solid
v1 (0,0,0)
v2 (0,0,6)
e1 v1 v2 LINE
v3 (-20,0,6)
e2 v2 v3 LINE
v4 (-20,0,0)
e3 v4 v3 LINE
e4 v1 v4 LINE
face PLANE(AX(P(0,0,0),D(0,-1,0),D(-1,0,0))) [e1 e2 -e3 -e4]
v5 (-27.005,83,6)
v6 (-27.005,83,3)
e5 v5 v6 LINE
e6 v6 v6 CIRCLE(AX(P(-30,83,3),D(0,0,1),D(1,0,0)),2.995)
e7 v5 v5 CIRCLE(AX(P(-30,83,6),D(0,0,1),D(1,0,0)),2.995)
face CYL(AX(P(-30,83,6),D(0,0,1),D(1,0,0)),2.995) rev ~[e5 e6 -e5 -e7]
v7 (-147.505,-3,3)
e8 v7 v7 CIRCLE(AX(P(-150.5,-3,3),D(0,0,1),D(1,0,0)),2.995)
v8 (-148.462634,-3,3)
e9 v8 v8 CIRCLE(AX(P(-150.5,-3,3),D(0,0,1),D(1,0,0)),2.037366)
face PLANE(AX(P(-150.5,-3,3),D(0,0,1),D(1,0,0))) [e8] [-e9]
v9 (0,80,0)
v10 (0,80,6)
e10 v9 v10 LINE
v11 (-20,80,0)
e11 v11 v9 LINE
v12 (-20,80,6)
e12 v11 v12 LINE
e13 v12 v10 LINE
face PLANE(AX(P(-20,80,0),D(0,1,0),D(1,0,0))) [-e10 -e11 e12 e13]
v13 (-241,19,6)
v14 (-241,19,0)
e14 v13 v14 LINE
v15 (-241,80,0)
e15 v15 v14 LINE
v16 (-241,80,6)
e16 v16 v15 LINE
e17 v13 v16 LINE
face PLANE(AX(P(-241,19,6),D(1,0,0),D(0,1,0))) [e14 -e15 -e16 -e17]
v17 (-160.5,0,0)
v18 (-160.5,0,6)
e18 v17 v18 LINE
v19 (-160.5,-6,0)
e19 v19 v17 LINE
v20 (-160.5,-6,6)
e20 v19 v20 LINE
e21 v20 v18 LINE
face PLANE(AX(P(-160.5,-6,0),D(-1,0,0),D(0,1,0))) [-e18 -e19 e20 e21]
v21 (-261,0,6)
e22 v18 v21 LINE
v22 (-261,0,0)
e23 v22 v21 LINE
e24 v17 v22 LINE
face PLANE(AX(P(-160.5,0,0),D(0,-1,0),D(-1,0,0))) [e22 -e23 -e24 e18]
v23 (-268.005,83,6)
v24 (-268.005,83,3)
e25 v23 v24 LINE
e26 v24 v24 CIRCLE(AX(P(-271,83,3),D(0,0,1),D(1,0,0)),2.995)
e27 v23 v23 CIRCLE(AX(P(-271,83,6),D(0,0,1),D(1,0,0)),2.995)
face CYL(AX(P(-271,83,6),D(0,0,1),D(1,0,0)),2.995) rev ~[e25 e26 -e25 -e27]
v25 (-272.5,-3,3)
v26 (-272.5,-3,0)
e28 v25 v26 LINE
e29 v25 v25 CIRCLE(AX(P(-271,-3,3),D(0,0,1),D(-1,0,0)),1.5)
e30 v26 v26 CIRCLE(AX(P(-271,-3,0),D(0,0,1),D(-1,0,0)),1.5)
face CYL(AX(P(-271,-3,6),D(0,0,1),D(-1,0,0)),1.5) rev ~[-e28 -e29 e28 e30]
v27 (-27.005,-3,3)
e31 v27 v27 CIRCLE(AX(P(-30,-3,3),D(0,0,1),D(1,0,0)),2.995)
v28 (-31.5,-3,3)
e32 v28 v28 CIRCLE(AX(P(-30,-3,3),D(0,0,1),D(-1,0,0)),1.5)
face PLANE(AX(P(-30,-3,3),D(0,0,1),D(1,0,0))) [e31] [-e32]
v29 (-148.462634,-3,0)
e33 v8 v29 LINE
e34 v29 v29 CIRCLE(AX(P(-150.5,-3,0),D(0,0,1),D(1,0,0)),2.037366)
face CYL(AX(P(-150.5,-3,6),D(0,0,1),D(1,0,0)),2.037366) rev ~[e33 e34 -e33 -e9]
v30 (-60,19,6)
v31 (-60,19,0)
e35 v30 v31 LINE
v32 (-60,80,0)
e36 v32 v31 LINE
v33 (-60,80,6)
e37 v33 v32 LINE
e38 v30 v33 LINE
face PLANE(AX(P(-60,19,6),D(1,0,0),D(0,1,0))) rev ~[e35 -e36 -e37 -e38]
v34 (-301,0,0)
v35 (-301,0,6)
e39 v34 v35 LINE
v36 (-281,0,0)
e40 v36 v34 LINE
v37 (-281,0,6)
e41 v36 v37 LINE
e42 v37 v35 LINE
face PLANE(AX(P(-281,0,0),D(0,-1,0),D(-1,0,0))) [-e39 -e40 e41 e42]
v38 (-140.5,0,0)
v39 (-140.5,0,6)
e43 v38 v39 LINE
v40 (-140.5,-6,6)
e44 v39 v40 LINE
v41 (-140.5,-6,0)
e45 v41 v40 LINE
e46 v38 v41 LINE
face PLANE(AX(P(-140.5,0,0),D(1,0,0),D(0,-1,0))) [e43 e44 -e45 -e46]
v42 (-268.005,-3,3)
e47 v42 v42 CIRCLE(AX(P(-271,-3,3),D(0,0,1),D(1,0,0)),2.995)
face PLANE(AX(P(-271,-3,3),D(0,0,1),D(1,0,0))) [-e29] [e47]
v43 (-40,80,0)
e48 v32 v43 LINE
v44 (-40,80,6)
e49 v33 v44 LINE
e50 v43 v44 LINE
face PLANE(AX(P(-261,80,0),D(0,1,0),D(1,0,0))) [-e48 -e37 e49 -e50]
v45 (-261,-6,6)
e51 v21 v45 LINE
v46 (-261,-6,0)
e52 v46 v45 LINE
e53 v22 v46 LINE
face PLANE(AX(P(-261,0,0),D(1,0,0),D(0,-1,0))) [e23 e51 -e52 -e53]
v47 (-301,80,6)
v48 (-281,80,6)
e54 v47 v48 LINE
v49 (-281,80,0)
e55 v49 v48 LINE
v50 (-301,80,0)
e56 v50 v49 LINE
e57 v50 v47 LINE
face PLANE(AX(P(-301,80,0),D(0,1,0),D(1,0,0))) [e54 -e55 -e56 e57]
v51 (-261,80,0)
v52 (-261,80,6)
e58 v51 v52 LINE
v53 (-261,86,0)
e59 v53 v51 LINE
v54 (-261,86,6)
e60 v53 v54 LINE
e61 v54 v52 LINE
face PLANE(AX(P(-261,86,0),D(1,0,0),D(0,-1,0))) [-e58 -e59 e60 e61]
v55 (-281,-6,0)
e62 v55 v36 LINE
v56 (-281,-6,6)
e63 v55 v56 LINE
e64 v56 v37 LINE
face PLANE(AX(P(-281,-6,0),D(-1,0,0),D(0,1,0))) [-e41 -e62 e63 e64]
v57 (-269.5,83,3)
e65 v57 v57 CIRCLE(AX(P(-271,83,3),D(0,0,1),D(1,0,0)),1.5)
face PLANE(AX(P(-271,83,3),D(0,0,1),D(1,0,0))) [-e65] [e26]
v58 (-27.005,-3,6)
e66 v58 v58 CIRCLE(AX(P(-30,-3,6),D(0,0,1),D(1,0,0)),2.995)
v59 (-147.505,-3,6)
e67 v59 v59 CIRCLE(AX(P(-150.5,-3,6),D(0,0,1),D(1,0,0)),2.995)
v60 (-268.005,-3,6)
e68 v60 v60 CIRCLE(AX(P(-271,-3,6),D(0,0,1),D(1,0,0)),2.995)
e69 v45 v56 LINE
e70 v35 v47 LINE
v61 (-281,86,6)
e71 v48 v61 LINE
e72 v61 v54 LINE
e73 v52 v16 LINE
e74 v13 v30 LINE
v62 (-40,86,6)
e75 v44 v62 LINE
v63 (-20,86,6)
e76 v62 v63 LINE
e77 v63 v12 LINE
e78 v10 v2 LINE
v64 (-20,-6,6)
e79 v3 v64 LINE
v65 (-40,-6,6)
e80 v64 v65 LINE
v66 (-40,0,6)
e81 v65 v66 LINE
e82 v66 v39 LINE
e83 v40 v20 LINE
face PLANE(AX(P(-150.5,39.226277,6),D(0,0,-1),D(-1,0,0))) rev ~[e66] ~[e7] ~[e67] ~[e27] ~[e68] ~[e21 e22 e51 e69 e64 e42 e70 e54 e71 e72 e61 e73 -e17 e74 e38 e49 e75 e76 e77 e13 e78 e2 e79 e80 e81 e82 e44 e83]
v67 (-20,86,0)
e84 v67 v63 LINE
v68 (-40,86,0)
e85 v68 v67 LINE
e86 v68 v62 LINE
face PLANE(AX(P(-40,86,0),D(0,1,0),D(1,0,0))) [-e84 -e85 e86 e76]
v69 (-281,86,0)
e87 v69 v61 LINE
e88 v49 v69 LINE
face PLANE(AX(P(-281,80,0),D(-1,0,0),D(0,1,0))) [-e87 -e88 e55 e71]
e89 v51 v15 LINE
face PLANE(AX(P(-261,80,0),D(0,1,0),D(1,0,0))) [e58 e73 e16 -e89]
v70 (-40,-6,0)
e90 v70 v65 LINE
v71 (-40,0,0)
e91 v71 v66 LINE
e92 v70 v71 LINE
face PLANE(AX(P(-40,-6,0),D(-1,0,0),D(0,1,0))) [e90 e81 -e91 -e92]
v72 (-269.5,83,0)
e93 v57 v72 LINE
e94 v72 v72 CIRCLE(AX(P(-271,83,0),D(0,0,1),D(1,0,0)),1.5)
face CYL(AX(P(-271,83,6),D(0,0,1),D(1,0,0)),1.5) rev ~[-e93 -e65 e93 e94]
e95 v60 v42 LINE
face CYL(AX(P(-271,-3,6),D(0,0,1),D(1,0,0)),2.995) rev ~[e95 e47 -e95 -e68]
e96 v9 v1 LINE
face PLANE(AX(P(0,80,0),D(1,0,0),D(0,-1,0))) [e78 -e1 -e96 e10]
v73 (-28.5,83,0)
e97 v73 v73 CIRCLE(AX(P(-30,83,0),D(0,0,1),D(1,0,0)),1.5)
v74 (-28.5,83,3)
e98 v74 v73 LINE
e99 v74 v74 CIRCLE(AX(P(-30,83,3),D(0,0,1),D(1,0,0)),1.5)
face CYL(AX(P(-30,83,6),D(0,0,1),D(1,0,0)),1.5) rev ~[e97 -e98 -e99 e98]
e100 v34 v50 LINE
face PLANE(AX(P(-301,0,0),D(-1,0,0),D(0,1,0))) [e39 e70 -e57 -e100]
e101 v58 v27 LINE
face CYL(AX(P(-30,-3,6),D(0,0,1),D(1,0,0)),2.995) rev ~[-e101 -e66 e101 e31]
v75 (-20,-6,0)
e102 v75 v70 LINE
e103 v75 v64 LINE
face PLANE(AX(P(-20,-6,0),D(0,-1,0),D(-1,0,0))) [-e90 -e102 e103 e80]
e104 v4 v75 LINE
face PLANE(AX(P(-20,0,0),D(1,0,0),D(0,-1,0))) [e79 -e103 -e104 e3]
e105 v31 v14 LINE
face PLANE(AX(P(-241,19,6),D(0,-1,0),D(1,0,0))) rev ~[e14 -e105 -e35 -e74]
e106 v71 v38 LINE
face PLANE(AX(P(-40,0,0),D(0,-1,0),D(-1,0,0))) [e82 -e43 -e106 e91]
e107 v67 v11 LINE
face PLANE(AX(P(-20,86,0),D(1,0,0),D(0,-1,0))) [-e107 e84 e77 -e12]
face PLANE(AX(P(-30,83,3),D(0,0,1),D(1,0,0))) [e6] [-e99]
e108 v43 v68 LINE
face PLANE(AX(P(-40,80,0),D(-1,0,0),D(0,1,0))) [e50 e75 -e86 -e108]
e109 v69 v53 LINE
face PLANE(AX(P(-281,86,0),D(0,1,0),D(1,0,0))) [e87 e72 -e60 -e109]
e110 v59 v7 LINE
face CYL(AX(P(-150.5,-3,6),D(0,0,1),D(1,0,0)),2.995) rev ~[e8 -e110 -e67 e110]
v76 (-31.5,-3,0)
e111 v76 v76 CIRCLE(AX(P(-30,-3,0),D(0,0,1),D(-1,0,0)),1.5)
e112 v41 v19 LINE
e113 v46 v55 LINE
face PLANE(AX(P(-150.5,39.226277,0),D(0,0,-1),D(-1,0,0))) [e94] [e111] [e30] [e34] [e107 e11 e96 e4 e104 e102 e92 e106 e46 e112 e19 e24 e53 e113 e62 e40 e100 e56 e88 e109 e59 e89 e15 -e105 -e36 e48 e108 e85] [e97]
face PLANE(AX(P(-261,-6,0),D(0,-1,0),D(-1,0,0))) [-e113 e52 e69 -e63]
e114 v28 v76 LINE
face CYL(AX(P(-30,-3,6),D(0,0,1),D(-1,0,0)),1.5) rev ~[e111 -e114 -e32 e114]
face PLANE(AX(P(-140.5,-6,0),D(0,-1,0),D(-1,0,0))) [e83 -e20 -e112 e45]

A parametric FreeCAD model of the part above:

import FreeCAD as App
import Part
import Sketcher
from FreeCAD import Vector
Q = App.Units.Quantity

doc = App.newDocument("Part")
params = doc.addObject("Spreadsheet::Sheet", "Params")
for row, (alias, value) in enumerate([
    ("sketch1_width", "20 mm"),
    ("sketch1_width2", "221 mm"),
    ("sketch1_height", "80 mm"),
    ("sketch1_height2", "6 mm"),
    ("pad1_length", "6 mm"),
    ("sketch2_width", "181 mm"),
    ("sketch2_height", "61 mm"),
    ("sketch3_diameter", "3 mm"),
    ("sketch4_diameter", "5.99 mm"),
    ("pocket3_length", "3 mm"),
], start=1):
    params.set(f"A{row}", alias)
    params.set(f"B{row}", "=" + value)
    params.setAlias(f"B{row}", alias)

body = doc.addObject("PartDesign::Body", "Body")

# Sketch on XY plane
sketch1 = body.newObject("Sketcher::SketchObject", "Sketch")
sketch1.AttachmentSupport = (doc.getObject("XY_Plane"), [""])
sketch1.MapMode = "FlatFace"
sketch1.addGeometry([
    Part.LineSegment(Vector(-281, 80, 0), Vector(-301, 80, 0)),  # 0
    Part.LineSegment(Vector(-301, 80, 0), Vector(-301, 0, 0)),  # 1
    Part.LineSegment(Vector(-301, 0, 0), Vector(-281, 0, 0)),  # 2
    Part.LineSegment(Vector(-281, 0, 0), Vector(-281, -6, 0)),  # 3
    Part.LineSegment(Vector(-281, -6, 0), Vector(-261, -6, 0)),  # 4
    Part.LineSegment(Vector(-261, -6, 0), Vector(-261, 0, 0)),  # 5
    Part.LineSegment(Vector(-261, 0, 0), Vector(-160, 0, 0)),  # 6
    Part.LineSegment(Vector(-160, 0, 0), Vector(-160, -6, 0)),  # 7
    Part.LineSegment(Vector(-160, -6, 0), Vector(-140, -6, 0)),  # 8
    Part.LineSegment(Vector(-140, -6, 0), Vector(-140, 0, 0)),  # 9
    Part.LineSegment(Vector(-140, 0, 0), Vector(-40, 0, 0)),  # 10
    Part.LineSegment(Vector(-40, 0, 0), Vector(-40, -6, 0)),  # 11
    Part.LineSegment(Vector(-40, -6, 0), Vector(-20, -6, 0)),  # 12
    Part.LineSegment(Vector(-20, -6, 0), Vector(-20, 0, 0)),  # 13
    Part.LineSegment(Vector(-20, 0, 0), Vector(0, 0, 0)),  # 14
    Part.LineSegment(Vector(0, 0, 0), Vector(0, 80, 0)),  # 15
    Part.LineSegment(Vector(0, 80, 0), Vector(-20, 80, 0)),  # 16
    Part.LineSegment(Vector(-20, 80, 0), Vector(-20, 86, 0)),  # 17
    Part.LineSegment(Vector(-20, 86, 0), Vector(-40, 86, 0)),  # 18
    Part.LineSegment(Vector(-40, 86, 0), Vector(-40, 80, 0)),  # 19
    Part.LineSegment(Vector(-40, 80, 0), Vector(-261, 80, 0)),  # 20
    Part.LineSegment(Vector(-261, 80, 0), Vector(-261, 86, 0)),  # 21
    Part.LineSegment(Vector(-261, 86, 0), Vector(-281, 86, 0)),  # 22
    Part.LineSegment(Vector(-281, 86, 0), Vector(-281, 80, 0)),  # 23
], False)
sketch1.addConstraint([
    Sketcher.Constraint("Coincident", 0, 2, 1, 1),
    Sketcher.Constraint("Coincident", 1, 2, 2, 1),
    Sketcher.Constraint("Coincident", 2, 2, 3, 1),
    Sketcher.Constraint("Coincident", 3, 2, 4, 1),
    Sketcher.Constraint("Coincident", 4, 2, 5, 1),
    Sketcher.Constraint("Coincident", 5, 2, 6, 1),
    Sketcher.Constraint("Coincident", 6, 2, 7, 1),
    Sketcher.Constraint("Coincident", 7, 2, 8, 1),
    Sketcher.Constraint("Coincident", 8, 2, 9, 1),
    Sketcher.Constraint("Coincident", 9, 2, 10, 1),
    Sketcher.Constraint("Coincident", 10, 2, 11, 1),
    Sketcher.Constraint("Coincident", 11, 2, 12, 1),
    Sketcher.Constraint("Coincident", 12, 2, 13, 1),
    Sketcher.Constraint("Coincident", 13, 2, 14, 1),
    Sketcher.Constraint("Coincident", 14, 2, 15, 1),
    Sketcher.Constraint("Coincident", 15, 2, 16, 1),
    Sketcher.Constraint("Coincident", 16, 2, 17, 1),
    Sketcher.Constraint("Coincident", 17, 2, 18, 1),
    Sketcher.Constraint("Coincident", 18, 2, 19, 1),
    Sketcher.Constraint("Coincident", 19, 2, 20, 1),
    Sketcher.Constraint("Coincident", 20, 2, 21, 1),
    Sketcher.Constraint("Coincident", 21, 2, 22, 1),
    Sketcher.Constraint("Coincident", 22, 2, 23, 1),
    Sketcher.Constraint("Coincident", 23, 2, 0, 1),
    Sketcher.Constraint("Horizontal", 0),
    Sketcher.Constraint("Vertical", 1),
    Sketcher.Constraint("Horizontal", 2),
    Sketcher.Constraint("Vertical", 3),
    Sketcher.Constraint("Horizontal", 4),
    Sketcher.Constraint("Vertical", 5),
    Sketcher.Constraint("Horizontal", 6),
    Sketcher.Constraint("Vertical", 7),
    Sketcher.Constraint("Horizontal", 8),
    Sketcher.Constraint("Vertical", 9),
    Sketcher.Constraint("Horizontal", 10),
    Sketcher.Constraint("Vertical", 11),
    Sketcher.Constraint("Horizontal", 12),
    Sketcher.Constraint("Vertical", 13),
    Sketcher.Constraint("Horizontal", 14),
    Sketcher.Constraint("Vertical", 15),
    Sketcher.Constraint("Horizontal", 16),
    Sketcher.Constraint("Vertical", 17),
    Sketcher.Constraint("Horizontal", 18),
    Sketcher.Constraint("Vertical", 19),
    Sketcher.Constraint("Horizontal", 20),
    Sketcher.Constraint("Vertical", 21),
    Sketcher.Constraint("Horizontal", 22),
    Sketcher.Constraint("Vertical", 23),
    Sketcher.Constraint("Coincident", 14, 2, -1, 1),
    Sketcher.Constraint("PointOnObject", 1, 2, -1),
    Sketcher.Constraint("PointOnObject", 5, 2, -1),
    Sketcher.Constraint("PointOnObject", 9, 2, -1),
    Sketcher.Constraint("Horizontal", 4, 2, 7, 2),
    Sketcher.Constraint("Horizontal", 8, 2, 11, 2),
    Sketcher.Constraint("Horizontal", 0, 2, 15, 2),
    Sketcher.Constraint("Horizontal", 16, 2, 19, 2),
    Sketcher.Constraint("Horizontal", 18, 2, 21, 2),
    Sketcher.Constraint("Vertical", 13, 2, 16, 2),
    Sketcher.Constraint("Vertical", 11, 2, 18, 2),
    Sketcher.Constraint("Vertical", 5, 2, 20, 2),
    Sketcher.Constraint("Vertical", 3, 2, 22, 2),
    Sketcher.Constraint("Equal", 2, 4),
    Sketcher.Constraint("Equal", 4, 8),
    Sketcher.Constraint("Equal", 6, 10),
    Sketcher.Constraint("Equal", 8, 12),
    Sketcher.Constraint("Equal", 12, 14),
    Sketcher.Constraint("Equal", 13, 17),
    Sketcher.Constraint("DistanceX", 0, 2, 0, 1, Q("20 mm")),
    Sketcher.Constraint("DistanceX", 20, 2, 20, 1, Q("221 mm")),
    Sketcher.Constraint("DistanceY", 1, 2, 1, 1, Q("80 mm")),
    Sketcher.Constraint("DistanceY", 3, 2, 3, 1, Q("6 mm")),
])
sketch1.setExpression("Constraints[67]", "Params.sketch1_width")
sketch1.setExpression("Constraints[68]", "Params.sketch1_width2")
sketch1.setExpression("Constraints[69]", "Params.sketch1_height")
sketch1.setExpression("Constraints[70]", "Params.sketch1_height2")
pad1 = body.newObject("PartDesign::Pad", "Pad")
pad1.Profile = sketch1
pad1.setExpression("Length", "Params.pad1_length")

# Sketch on XY plane
sketch2 = body.newObject("Sketcher::SketchObject", "Sketch001")
sketch2.AttachmentSupport = (doc.getObject("XY_Plane"), [""])
sketch2.MapMode = "FlatFace"
sketch2.AttachmentOffset = App.Placement(Vector(0, 0, 6), App.Rotation())
sketch2.addGeometry([
    Part.LineSegment(Vector(-241, 80, 0), Vector(-241, 19, 0)),
    Part.LineSegment(Vector(-241, 19, 0), Vector(-60, 19, 0)),
    Part.LineSegment(Vector(-60, 19, 0), Vector(-60, 80, 0)),
    Part.LineSegment(Vector(-60, 80, 0), Vector(-241, 80, 0)),
], False)
sketch2.addConstraint([
    Sketcher.Constraint("Coincident", 0, 2, 1, 1),
    Sketcher.Constraint("Coincident", 1, 2, 2, 1),
    Sketcher.Constraint("Coincident", 2, 2, 3, 1),
    Sketcher.Constraint("Coincident", 3, 2, 0, 1),
    Sketcher.Constraint("Vertical", 0),
    Sketcher.Constraint("Horizontal", 1),
    Sketcher.Constraint("Vertical", 2),
    Sketcher.Constraint("Horizontal", 3),
    Sketcher.Constraint("DistanceX", 1, 1, 1, 2, Q("181 mm")),
    Sketcher.Constraint("DistanceY", 0, 2, 0, 1, Q("61 mm")),
    Sketcher.Constraint("DistanceX", 0, 2, -1, 1, Q("241 mm")),
    Sketcher.Constraint("DistanceY", -1, 1, 0, 2, Q("19 mm")),
])
sketch2.setExpression("Constraints[8]", "Params.sketch2_width")
sketch2.setExpression("Constraints[9]", "Params.sketch2_height")
pocket1 = body.newObject("PartDesign::Pocket", "Pocket")
pocket1.Profile = sketch2
pocket1.Type = "ThroughAll"

# Sketch on XY plane
sketch3 = body.newObject("Sketcher::SketchObject", "Sketch002")
sketch3.AttachmentSupport = (doc.getObject("XY_Plane"), [""])
sketch3.MapMode = "FlatFace"
sketch3.AttachmentOffset = App.Placement(Vector(0, 0, 6), App.Rotation())
sketch3.addGeometry([
    Part.Circle(Vector(-271, 83, 0), Vector(0, 0, 1), 1.5),  # 0
    Part.Circle(Vector(-30, 83, 0), Vector(0, 0, 1), 1.5),  # 1
    Part.Circle(Vector(-30, -3, 0), Vector(0, 0, 1), 1.5),  # 2
    Part.Circle(Vector(-271, -3, 0), Vector(0, 0, 1), 1.5),  # 3
    Part.Circle(Vector(-150.5, -3, 0), Vector(0, 0, 1), 2),  # 4
], False)
sketch3.addConstraint([
    Sketcher.Constraint("Equal", 0, 1),
    Sketcher.Constraint("Equal", 1, 2),
    Sketcher.Constraint("Equal", 2, 3),
    Sketcher.Constraint("Horizontal", 0, 3, 1, 3),
    Sketcher.Constraint("Horizontal", 2, 3, 3, 3),
    Sketcher.Constraint("Horizontal", 3, 3, 4, 3),
    Sketcher.Constraint("Vertical", 1, 3, 2, 3),
    Sketcher.Constraint("Vertical", 0, 3, 3, 3),
    Sketcher.Constraint("Diameter", 0, Q("3 mm")),
    Sketcher.Constraint("DistanceX", 0, 3, -1, 1, Q("271 mm")),
    Sketcher.Constraint("DistanceY", -1, 1, 0, 3, Q("83 mm")),
    Sketcher.Constraint("DistanceX", 1, 3, -1, 1, Q("30 mm")),
    Sketcher.Constraint("DistanceY", 2, 3, -1, 1, Q("3 mm")),
    Sketcher.Constraint("DistanceX", 4, 3, -1, 1, Q("150.5 mm")),
    Sketcher.Constraint("Diameter", 4, Q("4.074732 mm")),
])
sketch3.setExpression("Constraints[8]", "Params.sketch3_diameter")
pocket2 = body.newObject("PartDesign::Pocket", "Pocket001")
pocket2.Profile = sketch3
pocket2.Type = "ThroughAll"

# Sketch on XY plane
sketch4 = body.newObject("Sketcher::SketchObject", "Sketch003")
sketch4.AttachmentSupport = (doc.getObject("XY_Plane"), [""])
sketch4.MapMode = "FlatFace"
sketch4.AttachmentOffset = App.Placement(Vector(0, 0, 6), App.Rotation())
sketch4.addGeometry([
    Part.Circle(Vector(-271, 83, 0), Vector(0, 0, 1), 3),  # 0
    Part.Circle(Vector(-30, 83, 0), Vector(0, 0, 1), 3),  # 1
    Part.Circle(Vector(-271, -3, 0), Vector(0, 0, 1), 3),  # 2
    Part.Circle(Vector(-150.5, -3, 0), Vector(0, 0, 1), 3),  # 3
    Part.Circle(Vector(-30, -3, 0), Vector(0, 0, 1), 3),  # 4
], False)
sketch4.addConstraint([
    Sketcher.Constraint("Equal", 0, 1),
    Sketcher.Constraint("Equal", 1, 2),
    Sketcher.Constraint("Equal", 2, 3),
    Sketcher.Constraint("Equal", 3, 4),
    Sketcher.Constraint("Horizontal", 0, 3, 1, 3),
    Sketcher.Constraint("Horizontal", 2, 3, 3, 3),
    Sketcher.Constraint("Horizontal", 3, 3, 4, 3),
    Sketcher.Constraint("Vertical", 0, 3, 2, 3),
    Sketcher.Constraint("Vertical", 1, 3, 4, 3),
    Sketcher.Constraint("Diameter", 0, Q("5.99 mm")),
    Sketcher.Constraint("DistanceX", 0, 3, -1, 1, Q("271 mm")),
    Sketcher.Constraint("DistanceY", -1, 1, 0, 3, Q("83 mm")),
    Sketcher.Constraint("DistanceX", 1, 3, -1, 1, Q("30 mm")),
    Sketcher.Constraint("DistanceY", 2, 3, -1, 1, Q("3 mm")),
    Sketcher.Constraint("DistanceX", 3, 3, -1, 1, Q("150.5 mm")),
])
sketch4.setExpression("Constraints[9]", "Params.sketch4_diameter")
pocket3 = body.newObject("PartDesign::Pocket", "Pocket002")
pocket3.Profile = sketch4
pocket3.setExpression("Length", "Params.pocket3_length")

doc.recompute()
